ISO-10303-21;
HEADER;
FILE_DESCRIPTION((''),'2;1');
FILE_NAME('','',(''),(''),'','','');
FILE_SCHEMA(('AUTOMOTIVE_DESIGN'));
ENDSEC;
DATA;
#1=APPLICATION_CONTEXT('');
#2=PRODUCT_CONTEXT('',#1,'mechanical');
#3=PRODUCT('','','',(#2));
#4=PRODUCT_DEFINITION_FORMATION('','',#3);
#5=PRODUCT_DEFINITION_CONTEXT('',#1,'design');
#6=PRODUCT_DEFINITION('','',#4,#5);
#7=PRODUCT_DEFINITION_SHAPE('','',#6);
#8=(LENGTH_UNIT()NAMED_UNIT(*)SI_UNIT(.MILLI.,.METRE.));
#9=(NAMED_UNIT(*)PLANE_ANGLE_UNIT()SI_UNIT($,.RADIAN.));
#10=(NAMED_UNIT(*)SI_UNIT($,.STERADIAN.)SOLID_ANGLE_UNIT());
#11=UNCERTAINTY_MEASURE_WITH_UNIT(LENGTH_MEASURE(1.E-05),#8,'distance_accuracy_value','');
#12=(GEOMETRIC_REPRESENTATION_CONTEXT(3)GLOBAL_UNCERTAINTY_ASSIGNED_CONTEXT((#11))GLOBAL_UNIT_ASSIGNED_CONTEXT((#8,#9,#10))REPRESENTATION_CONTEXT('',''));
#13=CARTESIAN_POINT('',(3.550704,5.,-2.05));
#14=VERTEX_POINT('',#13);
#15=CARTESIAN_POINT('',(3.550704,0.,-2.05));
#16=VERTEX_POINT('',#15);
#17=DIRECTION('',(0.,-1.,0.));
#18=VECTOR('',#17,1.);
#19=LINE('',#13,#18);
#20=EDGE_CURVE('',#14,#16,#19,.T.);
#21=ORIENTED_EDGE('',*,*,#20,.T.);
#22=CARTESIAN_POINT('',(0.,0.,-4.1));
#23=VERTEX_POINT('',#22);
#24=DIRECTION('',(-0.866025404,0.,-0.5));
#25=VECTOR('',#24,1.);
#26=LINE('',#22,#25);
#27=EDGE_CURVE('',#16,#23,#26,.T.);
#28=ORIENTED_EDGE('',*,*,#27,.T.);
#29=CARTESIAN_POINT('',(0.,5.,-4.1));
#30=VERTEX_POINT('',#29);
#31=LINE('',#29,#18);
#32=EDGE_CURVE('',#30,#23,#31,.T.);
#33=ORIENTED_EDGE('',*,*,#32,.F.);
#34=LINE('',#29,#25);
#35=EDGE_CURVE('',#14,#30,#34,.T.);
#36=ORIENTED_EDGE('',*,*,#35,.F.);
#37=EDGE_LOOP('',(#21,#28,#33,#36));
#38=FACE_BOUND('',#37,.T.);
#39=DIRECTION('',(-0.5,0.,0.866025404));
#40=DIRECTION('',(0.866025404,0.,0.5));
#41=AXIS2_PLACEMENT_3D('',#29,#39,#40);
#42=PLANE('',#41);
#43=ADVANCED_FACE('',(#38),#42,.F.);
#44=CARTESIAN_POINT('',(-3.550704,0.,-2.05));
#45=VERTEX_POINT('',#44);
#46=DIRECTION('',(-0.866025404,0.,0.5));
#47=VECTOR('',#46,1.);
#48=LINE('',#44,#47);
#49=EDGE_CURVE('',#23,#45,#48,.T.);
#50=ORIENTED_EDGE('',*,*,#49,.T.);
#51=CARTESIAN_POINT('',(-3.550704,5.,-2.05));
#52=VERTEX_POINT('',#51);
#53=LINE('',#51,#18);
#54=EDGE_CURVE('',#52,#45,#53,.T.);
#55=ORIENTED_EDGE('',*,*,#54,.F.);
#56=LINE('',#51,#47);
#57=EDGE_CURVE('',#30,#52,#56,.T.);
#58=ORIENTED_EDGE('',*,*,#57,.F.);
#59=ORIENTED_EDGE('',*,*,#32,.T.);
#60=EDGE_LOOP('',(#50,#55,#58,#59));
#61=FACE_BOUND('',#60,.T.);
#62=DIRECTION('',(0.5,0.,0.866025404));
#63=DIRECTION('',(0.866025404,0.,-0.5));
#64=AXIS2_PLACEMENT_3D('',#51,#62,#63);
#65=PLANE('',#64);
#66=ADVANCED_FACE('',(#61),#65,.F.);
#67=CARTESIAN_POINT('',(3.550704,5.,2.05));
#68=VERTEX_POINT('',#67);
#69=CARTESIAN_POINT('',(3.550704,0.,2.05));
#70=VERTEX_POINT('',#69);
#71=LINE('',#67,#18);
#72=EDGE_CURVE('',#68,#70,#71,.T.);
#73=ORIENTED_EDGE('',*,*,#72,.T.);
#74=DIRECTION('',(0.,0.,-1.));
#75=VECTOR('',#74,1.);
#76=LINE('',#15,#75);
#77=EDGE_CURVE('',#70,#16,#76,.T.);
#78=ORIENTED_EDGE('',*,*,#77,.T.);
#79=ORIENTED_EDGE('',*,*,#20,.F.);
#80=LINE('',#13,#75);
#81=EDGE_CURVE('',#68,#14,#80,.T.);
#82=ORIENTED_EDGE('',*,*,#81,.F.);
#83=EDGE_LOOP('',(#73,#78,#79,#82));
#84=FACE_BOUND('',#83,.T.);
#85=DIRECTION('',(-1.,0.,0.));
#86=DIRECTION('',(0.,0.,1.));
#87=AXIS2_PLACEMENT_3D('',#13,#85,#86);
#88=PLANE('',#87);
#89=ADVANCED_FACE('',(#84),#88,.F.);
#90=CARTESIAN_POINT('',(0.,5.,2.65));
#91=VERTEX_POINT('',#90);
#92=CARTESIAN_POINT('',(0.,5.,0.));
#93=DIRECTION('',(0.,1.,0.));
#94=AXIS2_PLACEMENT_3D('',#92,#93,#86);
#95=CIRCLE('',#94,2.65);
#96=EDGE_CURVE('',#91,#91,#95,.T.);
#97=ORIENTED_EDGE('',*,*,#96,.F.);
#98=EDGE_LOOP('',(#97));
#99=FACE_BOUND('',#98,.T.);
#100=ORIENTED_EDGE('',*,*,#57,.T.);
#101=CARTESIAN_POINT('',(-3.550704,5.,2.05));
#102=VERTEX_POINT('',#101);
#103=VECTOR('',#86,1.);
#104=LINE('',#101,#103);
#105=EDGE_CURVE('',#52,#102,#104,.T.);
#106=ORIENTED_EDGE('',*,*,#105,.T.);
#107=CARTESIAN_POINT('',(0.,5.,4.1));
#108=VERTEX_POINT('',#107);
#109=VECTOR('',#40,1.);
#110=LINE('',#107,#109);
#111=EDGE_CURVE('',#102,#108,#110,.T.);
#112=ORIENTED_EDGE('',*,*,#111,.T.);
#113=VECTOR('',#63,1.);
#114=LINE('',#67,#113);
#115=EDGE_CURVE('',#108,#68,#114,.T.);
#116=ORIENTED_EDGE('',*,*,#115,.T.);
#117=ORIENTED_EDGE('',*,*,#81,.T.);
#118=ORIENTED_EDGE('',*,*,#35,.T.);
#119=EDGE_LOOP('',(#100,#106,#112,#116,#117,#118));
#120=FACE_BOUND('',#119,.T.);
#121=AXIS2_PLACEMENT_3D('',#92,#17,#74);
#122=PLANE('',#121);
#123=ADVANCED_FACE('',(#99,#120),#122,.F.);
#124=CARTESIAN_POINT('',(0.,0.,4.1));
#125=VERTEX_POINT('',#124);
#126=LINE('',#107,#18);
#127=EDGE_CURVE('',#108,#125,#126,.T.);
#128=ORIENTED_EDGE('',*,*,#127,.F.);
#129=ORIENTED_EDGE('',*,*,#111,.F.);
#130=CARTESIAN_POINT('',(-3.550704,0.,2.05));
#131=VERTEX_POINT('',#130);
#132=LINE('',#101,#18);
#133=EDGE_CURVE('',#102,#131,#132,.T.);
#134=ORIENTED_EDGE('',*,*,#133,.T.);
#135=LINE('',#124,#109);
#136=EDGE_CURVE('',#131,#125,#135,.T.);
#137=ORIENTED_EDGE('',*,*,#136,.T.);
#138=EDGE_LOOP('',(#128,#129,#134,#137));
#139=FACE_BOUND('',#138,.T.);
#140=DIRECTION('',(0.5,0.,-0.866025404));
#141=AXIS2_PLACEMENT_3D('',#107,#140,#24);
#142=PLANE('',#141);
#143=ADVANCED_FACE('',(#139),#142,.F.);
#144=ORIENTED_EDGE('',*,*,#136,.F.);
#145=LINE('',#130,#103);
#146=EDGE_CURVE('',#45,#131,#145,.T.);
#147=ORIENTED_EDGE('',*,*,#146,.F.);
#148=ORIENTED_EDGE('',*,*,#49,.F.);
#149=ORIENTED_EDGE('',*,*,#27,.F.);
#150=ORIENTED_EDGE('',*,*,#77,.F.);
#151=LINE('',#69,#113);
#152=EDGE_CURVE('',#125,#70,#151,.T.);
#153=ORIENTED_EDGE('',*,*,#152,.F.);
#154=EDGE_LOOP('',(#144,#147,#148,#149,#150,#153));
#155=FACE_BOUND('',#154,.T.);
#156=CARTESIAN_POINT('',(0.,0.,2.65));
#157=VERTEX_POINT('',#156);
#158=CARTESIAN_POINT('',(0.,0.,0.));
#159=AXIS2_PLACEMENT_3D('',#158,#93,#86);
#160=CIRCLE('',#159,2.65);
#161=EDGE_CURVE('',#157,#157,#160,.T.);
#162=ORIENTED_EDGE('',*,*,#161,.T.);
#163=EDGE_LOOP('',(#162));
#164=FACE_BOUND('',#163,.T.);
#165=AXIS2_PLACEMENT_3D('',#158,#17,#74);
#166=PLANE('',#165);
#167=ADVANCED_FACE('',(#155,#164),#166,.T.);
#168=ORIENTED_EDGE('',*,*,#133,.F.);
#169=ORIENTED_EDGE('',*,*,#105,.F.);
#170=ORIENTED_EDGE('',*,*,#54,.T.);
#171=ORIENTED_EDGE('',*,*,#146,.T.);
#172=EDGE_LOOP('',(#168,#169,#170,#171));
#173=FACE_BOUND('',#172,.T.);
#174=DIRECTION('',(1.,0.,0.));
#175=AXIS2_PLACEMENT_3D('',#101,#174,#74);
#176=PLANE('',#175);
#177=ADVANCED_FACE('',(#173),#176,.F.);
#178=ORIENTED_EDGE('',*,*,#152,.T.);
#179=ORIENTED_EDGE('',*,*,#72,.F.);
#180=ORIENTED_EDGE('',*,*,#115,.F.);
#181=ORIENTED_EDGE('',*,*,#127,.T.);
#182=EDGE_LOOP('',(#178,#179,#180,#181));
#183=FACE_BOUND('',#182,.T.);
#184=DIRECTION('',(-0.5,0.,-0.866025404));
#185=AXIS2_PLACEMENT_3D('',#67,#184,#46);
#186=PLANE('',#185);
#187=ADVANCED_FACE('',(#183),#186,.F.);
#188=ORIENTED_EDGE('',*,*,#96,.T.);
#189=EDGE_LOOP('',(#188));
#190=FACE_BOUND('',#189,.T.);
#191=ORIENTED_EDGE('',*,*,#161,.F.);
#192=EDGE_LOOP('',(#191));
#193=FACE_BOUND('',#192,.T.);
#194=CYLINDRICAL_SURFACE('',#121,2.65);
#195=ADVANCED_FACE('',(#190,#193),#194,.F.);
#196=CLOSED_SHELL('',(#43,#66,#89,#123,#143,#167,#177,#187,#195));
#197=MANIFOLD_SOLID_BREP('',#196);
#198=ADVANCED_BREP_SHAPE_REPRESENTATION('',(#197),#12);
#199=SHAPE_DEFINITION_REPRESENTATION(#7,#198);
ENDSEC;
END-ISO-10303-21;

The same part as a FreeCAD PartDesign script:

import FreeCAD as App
import Part
import Sketcher
Q = App.Units.Quantity


def add_polygon(sketch, points):
    """Adds a closed chain of lines whose ends are joined by coincident constraints."""
    first, n = sketch.GeometryCount, len(points)
    for a, b in zip(points, points[1:] + points[:1]):
        sketch.addGeometry(Part.LineSegment(App.Vector(*a, 0), App.Vector(*b, 0)), False)
    for i in range(n):
        sketch.addConstraint(Sketcher.Constraint("Coincident", first + i, 2, first + (i + 1) % n, 1))

doc = App.newDocument("Part")
params = doc.addObject("Spreadsheet::Sheet", "Params")
for row, (alias, value) in enumerate([
    ("sketch1_diameter", "5.3 mm"),
    ("sketch1_height", "4.1 mm"),
    ("sketch1_length", "4.1 mm"),
    ("pad1_length", "5 mm"),
], start=1):
    params.set(f"A{row}", alias)
    params.set(f"B{row}", "=" + value)
    params.setAlias(f"B{row}", alias)

body = doc.addObject("PartDesign::Body", "Body")

# Sketch on XZ plane
sketch1 = doc.addObject("Sketcher::SketchObject", "Sketch")
body.addObject(sketch1)
sketch1.AttachmentSupport = (doc.XZ_Plane, [""])
sketch1.MapMode = "FlatFace"
add_polygon(sketch1, [(0, -4.1), (-3.6, -2), (-3.6, 2), (0, 4.1), (3.6, 2), (3.6, -2)])  # lines 0-5
sketch1.addGeometry(Part.Circle(App.Vector(0, 0, 0), App.Vector(0, 0, 1), 2.6), False)  # 6
sketch1.addConstraint([
    Sketcher.Constraint("Vertical", 1),
    Sketcher.Constraint("Vertical", 4),
    Sketcher.Constraint("Coincident", 6, 3, -1, 1),
    Sketcher.Constraint("Symmetric", 0, 2, 3, 2, -1, 1),
    Sketcher.Constraint("Symmetric", 2, 2, 5, 2, -1, 1),
    Sketcher.Constraint("PointOnObject", 2, 2, -2),
    Sketcher.Constraint("Parallel", 2, 5),
    Sketcher.Constraint("Horizontal", 1, 2, 3, 2),
    Sketcher.Constraint("Diameter", 6, 5.3),
    Sketcher.Constraint("Angle", 0, Q("150 deg")),
    Sketcher.Constraint("DistanceY", 1, 1, 1, 2, 4.1),
    Sketcher.Constraint("Distance", 0, 4.1),
])
sketch1.setExpression("Constraints[14]", "Params.sketch1_diameter")
sketch1.setExpression("Constraints[16]", "Params.sketch1_height")
sketch1.setExpression("Constraints[17]", "Params.sketch1_length")
pad1 = doc.addObject("PartDesign::Pad", "Pad")
body.addObject(pad1)
pad1.Profile = sketch1
pad1.setExpression("Length", "Params.pad1_length")
pad1.Reversed = True

doc.recompute()
